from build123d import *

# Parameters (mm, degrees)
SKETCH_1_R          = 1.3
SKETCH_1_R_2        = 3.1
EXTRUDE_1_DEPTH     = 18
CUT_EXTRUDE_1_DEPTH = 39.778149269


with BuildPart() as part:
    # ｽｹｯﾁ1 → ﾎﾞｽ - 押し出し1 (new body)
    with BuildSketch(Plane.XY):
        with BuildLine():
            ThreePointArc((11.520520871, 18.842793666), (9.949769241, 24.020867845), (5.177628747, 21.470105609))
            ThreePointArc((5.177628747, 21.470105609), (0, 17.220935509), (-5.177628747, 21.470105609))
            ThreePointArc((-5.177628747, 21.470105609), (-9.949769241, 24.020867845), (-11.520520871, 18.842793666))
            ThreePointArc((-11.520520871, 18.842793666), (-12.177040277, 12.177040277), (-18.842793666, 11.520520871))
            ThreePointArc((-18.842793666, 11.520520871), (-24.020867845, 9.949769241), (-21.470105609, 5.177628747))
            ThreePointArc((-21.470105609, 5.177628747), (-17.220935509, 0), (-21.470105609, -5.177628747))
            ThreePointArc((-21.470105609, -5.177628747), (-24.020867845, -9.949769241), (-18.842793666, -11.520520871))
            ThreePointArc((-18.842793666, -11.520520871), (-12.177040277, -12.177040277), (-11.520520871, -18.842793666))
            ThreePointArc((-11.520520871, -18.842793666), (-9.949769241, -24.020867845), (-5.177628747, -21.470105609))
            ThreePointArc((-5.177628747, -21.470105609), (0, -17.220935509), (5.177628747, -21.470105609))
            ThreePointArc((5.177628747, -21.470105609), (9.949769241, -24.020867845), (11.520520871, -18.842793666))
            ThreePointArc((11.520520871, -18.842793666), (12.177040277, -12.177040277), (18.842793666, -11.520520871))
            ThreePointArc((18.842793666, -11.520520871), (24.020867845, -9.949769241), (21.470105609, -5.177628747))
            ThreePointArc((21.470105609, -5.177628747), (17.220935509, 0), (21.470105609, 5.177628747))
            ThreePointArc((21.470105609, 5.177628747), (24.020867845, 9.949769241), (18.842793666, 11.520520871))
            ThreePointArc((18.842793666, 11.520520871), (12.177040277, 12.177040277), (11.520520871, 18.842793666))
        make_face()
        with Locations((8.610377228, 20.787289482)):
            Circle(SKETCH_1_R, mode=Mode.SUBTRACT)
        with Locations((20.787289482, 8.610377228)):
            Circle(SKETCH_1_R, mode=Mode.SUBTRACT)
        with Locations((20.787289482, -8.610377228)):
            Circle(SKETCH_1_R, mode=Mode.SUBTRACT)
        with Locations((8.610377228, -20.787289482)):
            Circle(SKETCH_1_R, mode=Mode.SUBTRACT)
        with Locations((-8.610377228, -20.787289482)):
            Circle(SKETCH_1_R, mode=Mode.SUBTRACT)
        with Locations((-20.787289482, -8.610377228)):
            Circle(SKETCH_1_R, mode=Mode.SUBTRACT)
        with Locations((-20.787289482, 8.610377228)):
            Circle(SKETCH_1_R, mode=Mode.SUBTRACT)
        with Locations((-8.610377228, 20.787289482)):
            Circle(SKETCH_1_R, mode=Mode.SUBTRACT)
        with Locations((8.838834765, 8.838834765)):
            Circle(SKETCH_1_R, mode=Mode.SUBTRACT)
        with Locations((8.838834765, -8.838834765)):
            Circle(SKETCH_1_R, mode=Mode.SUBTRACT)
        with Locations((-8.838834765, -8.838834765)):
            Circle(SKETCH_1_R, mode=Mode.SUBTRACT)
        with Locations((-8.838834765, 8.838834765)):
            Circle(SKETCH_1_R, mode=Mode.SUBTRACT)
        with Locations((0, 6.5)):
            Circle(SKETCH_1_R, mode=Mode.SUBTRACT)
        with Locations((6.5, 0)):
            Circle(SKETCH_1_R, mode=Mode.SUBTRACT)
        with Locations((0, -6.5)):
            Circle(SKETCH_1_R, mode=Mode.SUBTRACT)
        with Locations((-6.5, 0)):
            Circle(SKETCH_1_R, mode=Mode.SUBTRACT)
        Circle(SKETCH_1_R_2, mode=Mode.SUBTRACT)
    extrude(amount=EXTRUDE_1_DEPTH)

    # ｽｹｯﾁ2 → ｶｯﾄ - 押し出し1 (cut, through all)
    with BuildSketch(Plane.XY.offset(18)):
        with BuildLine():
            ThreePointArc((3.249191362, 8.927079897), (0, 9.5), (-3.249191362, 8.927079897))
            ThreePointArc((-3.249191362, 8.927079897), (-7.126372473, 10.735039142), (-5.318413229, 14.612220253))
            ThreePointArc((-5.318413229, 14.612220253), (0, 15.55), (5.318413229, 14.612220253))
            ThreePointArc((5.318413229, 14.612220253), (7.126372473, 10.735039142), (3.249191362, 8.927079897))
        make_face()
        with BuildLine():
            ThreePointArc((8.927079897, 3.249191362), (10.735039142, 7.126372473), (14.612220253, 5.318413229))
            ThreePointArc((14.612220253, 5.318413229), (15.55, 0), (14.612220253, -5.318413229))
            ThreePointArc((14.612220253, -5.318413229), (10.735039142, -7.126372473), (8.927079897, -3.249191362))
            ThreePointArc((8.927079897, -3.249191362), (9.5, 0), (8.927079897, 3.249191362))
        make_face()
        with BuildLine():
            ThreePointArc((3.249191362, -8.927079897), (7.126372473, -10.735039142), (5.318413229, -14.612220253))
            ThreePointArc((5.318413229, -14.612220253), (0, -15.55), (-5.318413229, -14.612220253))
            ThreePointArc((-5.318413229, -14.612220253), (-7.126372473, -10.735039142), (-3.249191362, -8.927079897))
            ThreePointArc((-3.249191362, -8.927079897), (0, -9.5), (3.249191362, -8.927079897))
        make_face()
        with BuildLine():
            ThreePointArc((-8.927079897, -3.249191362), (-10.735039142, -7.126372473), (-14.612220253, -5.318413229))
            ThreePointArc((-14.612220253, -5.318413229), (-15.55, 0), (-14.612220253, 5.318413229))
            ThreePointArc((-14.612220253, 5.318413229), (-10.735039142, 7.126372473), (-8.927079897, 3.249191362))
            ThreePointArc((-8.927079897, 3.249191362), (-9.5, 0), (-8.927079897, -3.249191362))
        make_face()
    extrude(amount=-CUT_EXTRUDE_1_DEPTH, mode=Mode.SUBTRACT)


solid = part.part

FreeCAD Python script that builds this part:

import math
import FreeCAD as App
import Part
import Sketcher
from FreeCAD import Vector

doc = App.newDocument("Part")
body = doc.addObject("PartDesign::Body", "Body")

sketch1 = doc.addObject("Sketcher::SketchObject", "Sketch")
body.addObject(sketch1)
sketch1.AttachmentSupport = (doc.XY_Plane, [""])
sketch1.MapMode = "FlatFace"
sketch1.addGeometry([
    Part.ArcOfCircle(Part.Circle(Vector(8.610377, 20.787289, 0), Vector(0, 0, 1), 3.5), math.radians(-33.75), math.radians(168.75)),
    Part.ArcOfCircle(Part.Circle(Vector(0, 22.5, 0), Vector(0, 0, 1), 5.279064), math.radians(-168.75), math.radians(-11.25)),
    Part.ArcOfCircle(Part.Circle(Vector(-8.610377, 20.787289, 0), Vector(0, 0, 1), 3.5), math.radians(11.25), math.radians(213.75)),
    Part.ArcOfCircle(Part.Circle(Vector(-15.909903, 15.909903, 0), Vector(0, 0, 1), 5.279064), math.radians(-123.75), math.radians(33.75)),
    Part.ArcOfCircle(Part.Circle(Vector(-20.787289, 8.610377, 0), Vector(0, 0, 1), 3.5), math.radians(56.25), math.radians(258.75)),
    Part.ArcOfCircle(Part.Circle(Vector(-22.5, 0, 0), Vector(0, 0, 1), 5.279064), math.radians(-78.75), math.radians(78.75)),
    Part.ArcOfCircle(Part.Circle(Vector(-20.787289, -8.610377, 0), Vector(0, 0, 1), 3.5), math.radians(101.25), math.radians(303.75)),
    Part.ArcOfCircle(Part.Circle(Vector(-15.909903, -15.909903, 0), Vector(0, 0, 1), 5.279064), math.radians(-33.75), math.radians(123.75)),
    Part.ArcOfCircle(Part.Circle(Vector(-8.610377, -20.787289, 0), Vector(0, 0, 1), 3.5), math.radians(146.25), math.radians(348.75)),
    Part.ArcOfCircle(Part.Circle(Vector(0, -22.5, 0), Vector(0, 0, 1), 5.279064), math.radians(11.25), math.radians(168.75)),
    Part.ArcOfCircle(Part.Circle(Vector(8.610377, -20.787289, 0), Vector(0, 0, 1), 3.5), math.radians(-168.75), math.radians(33.75)),
    Part.ArcOfCircle(Part.Circle(Vector(15.909903, -15.909903, 0), Vector(0, 0, 1), 5.279064), math.radians(56.25), math.radians(213.75)),
    Part.ArcOfCircle(Part.Circle(Vector(20.787289, -8.610377, 0), Vector(0, 0, 1), 3.5), math.radians(-123.75), math.radians(78.75)),
    Part.ArcOfCircle(Part.Circle(Vector(22.5, 0, 0), Vector(0, 0, 1), 5.279064), math.radians(101.25), math.radians(258.75)),
    Part.ArcOfCircle(Part.Circle(Vector(20.787289, 8.610377, 0), Vector(0, 0, 1), 3.5), math.radians(-78.75), math.radians(123.75)),
    Part.ArcOfCircle(Part.Circle(Vector(15.909903, 15.909903, 0), Vector(0, 0, 1), 5.279064), math.radians(146.25), math.radians(303.75)),
    Part.Circle(Vector(-8.610377, -20.787289, 0), Vector(0, 0, 1), 1.3),
    Part.Circle(Vector(-20.787289, -8.610377, 0), Vector(0, 0, 1), 1.3),
    Part.Circle(Vector(-8.838835, -8.838835, 0), Vector(0, 0, 1), 1.3),
    Part.Circle(Vector(8.610377, -20.787289, 0), Vector(0, 0, 1), 1.3),
    Part.Circle(Vector(0, -6.5, 0), Vector(0, 0, 1), 1.3),
    Part.Circle(Vector(8.838835, -8.838835, 0), Vector(0, 0, 1), 1.3),
    Part.Circle(Vector(0, 0, 0), Vector(0, 0, 1), 3.1),
    Part.Circle(Vector(20.787289, -8.610377, 0), Vector(0, 0, 1), 1.3),
    Part.Circle(Vector(-20.787289, 8.610377, 0), Vector(0, 0, 1), 1.3),
    Part.Circle(Vector(-6.5, 0, 0), Vector(0, 0, 1), 1.3),
    Part.Circle(Vector(-8.838835, 8.838835, 0), Vector(0, 0, 1), 1.3),
    Part.Circle(Vector(-8.610377, 20.787289, 0), Vector(0, 0, 1), 1.3),
    Part.Circle(Vector(6.5, 0, 0), Vector(0, 0, 1), 1.3),
    Part.Circle(Vector(0, 6.5, 0), Vector(0, 0, 1), 1.3),
    Part.Circle(Vector(8.838835, 8.838835, 0), Vector(0, 0, 1), 1.3),
    Part.Circle(Vector(20.787289, 8.610377, 0), Vector(0, 0, 1), 1.3),
    Part.Circle(Vector(8.610377, 20.787289, 0), Vector(0, 0, 1), 1.3),
], False)
sketch1.addConstraint([
    Sketcher.Constraint("Tangent", 0, 2, 1, 2),
    Sketcher.Constraint("Tangent", 1, 1, 2, 1),
    Sketcher.Constraint("Tangent", 2, 2, 3, 2),
    Sketcher.Constraint("Tangent", 3, 1, 4, 1),
    Sketcher.Constraint("Tangent", 4, 2, 5, 2),
    Sketcher.Constraint("Tangent", 5, 1, 6, 1),
    Sketcher.Constraint("Tangent", 6, 2, 7, 2),
    Sketcher.Constraint("Tangent", 7, 1, 8, 1),
    Sketcher.Constraint("Tangent", 8, 2, 9, 2),
    Sketcher.Constraint("Tangent", 9, 1, 10, 1),
    Sketcher.Constraint("Tangent", 10, 2, 11, 2),
    Sketcher.Constraint("Tangent", 11, 1, 12, 1),
    Sketcher.Constraint("Tangent", 12, 2, 13, 2),
    Sketcher.Constraint("Tangent", 13, 1, 14, 1),
    Sketcher.Constraint("Tangent", 14, 2, 15, 2),
    Sketcher.Constraint("Tangent", 15, 1, 0, 1),
    Sketcher.Constraint("Coincident", 22, 3, -1, 1),
    Sketcher.Constraint("Coincident", 16, 3, 8, 3),
    Sketcher.Constraint("Coincident", 17, 3, 6, 3),
    Sketcher.Constraint("Coincident", 19, 3, 10, 3),
    Sketcher.Constraint("Coincident", 23, 3, 12, 3),
    Sketcher.Constraint("Coincident", 24, 3, 4, 3),
    Sketcher.Constraint("Coincident", 27, 3, 2, 3),
    Sketcher.Constraint("Coincident", 31, 3, 14, 3),
    Sketcher.Constraint("Coincident", 32, 3, 0, 3),
    Sketcher.Constraint("Equal", 0, 2),
    Sketcher.Constraint("Equal", 1, 3),
    Sketcher.Constraint("Equal", 2, 4),
    Sketcher.Constraint("Equal", 3, 5),
    Sketcher.Constraint("Equal", 4, 6),
    Sketcher.Constraint("Equal", 5, 7),
    Sketcher.Constraint("Equal", 6, 8),
    Sketcher.Constraint("Equal", 7, 9),
    Sketcher.Constraint("Equal", 8, 10),
    Sketcher.Constraint("Equal", 9, 11),
    Sketcher.Constraint("Equal", 10, 12),
    Sketcher.Constraint("Equal", 11, 13),
    Sketcher.Constraint("Equal", 12, 14),
    Sketcher.Constraint("Equal", 13, 15),
    Sketcher.Constraint("Equal", 16, 17),
    Sketcher.Constraint("Equal", 17, 18),
    Sketcher.Constraint("Equal", 18, 19),
    Sketcher.Constraint("Equal", 19, 20),
    Sketcher.Constraint("Equal", 20, 21),
    Sketcher.Constraint("Equal", 21, 23),
    Sketcher.Constraint("Equal", 23, 24),
    Sketcher.Constraint("Equal", 24, 25),
    Sketcher.Constraint("Equal", 25, 26),
    Sketcher.Constraint("Equal", 26, 27),
    Sketcher.Constraint("Equal", 27, 28),
    Sketcher.Constraint("Equal", 28, 29),
    Sketcher.Constraint("Equal", 29, 30),
    Sketcher.Constraint("Equal", 30, 31),
    Sketcher.Constraint("Equal", 31, 32),
    Sketcher.Constraint("Symmetric", 0, 3, 8, 3, -1, 1),
    Sketcher.Constraint("Symmetric", 2, 3, 10, 3, -1, 1),
    Sketcher.Constraint("Symmetric", 4, 3, 12, 3, -1, 1),
    Sketcher.Constraint("Symmetric", 6, 3, 14, 3, -1, 1),
    Sketcher.Constraint("Symmetric", 21, 3, 26, 3, -1, 1),
    Sketcher.Constraint("Symmetric", 25, 3, 28, 3, -1, 1),
    Sketcher.Constraint("Symmetric", 20, 3, 29, 3, -1, 1),
    Sketcher.Constraint("Symmetric", 18, 3, 30, 3, -1, 1),
    Sketcher.Constraint("Symmetric", 0, 3, 2, 3, -2),
    Sketcher.Constraint("Symmetric", 6, 3, 12, 3, -2),
    Sketcher.Constraint("Symmetric", 18, 3, 21, 3, -2),
    Sketcher.Constraint("PointOnObject", 20, 3, -2),
    Sketcher.Constraint("PointOnObject", 25, 3, -1),
    Sketcher.Constraint("Diameter", 16, 2.6),
    Sketcher.Constraint("Diameter", 22, 6.2),
    Sketcher.Constraint("Radius", 0, 3.5),
    Sketcher.Constraint("DistanceY", 9, 3, 20, 3, 16.0),
    Sketcher.Constraint("DistanceX", 5, 3, 25, 3, 16.0),
    Sketcher.Constraint("DistanceX", 25, 3, 28, 3, 13.0),
    Sketcher.Constraint("DistanceY", 20, 3, 29, 3, 13.0),
    Sketcher.Constraint("Radius", 1, 5.279064),
    Sketcher.Constraint("DistanceY", -1, 1, 0, 3, 20.787289),
    Sketcher.Constraint("DistanceX", 4, 3, -1, 1, 20.787289),
    Sketcher.Constraint("DistanceY", 30, 3, 0, 2, 12.631271),
    Sketcher.Constraint("DistanceX", 3, 1, 26, 3, 10.003959),
])
pad1 = doc.addObject("PartDesign::Pad", "Pad")
body.addObject(pad1)
pad1.Profile = sketch1
pad1.Length = 18

sketch2 = doc.addObject("Sketcher::SketchObject", "Sketch001")
body.addObject(sketch2)
sketch2.AttachmentSupport = (doc.XY_Plane, [""])
sketch2.MapMode = "FlatFace"
sketch2.AttachmentOffset = App.Placement(Vector(0, 0, 18), App.Rotation())
sketch2.addGeometry([
    Part.ArcOfCircle(Part.Circle(Vector(0, 0, 0), Vector(0, 0, 1), 9.5), math.radians(70), math.radians(110)),
    Part.ArcOfCircle(Part.Circle(Vector(4.283802, 11.76965, 0), Vector(0, 0, 1), 3.025), math.radians(-110), math.radians(70)),
    Part.ArcOfCircle(Part.Circle(Vector(0, 0, 0), Vector(0, 0, 1), 15.55), math.radians(70), math.radians(110)),
    Part.ArcOfCircle(Part.Circle(Vector(-4.283802, 11.76965, 0), Vector(0, 0, 1), 3.025), math.radians(110), math.radians(290)),
    Part.ArcOfCircle(Part.Circle(Vector(11.76965, 4.283802, 0), Vector(0, 0, 1), 3.025), math.radians(20), math.radians(200)),
    Part.ArcOfCircle(Part.Circle(Vector(0, 0, 0), Vector(0, 0, 1), 9.5), math.radians(-20), math.radians(20)),
    Part.ArcOfCircle(Part.Circle(Vector(11.76965, -4.283802, 0), Vector(0, 0, 1), 3.025), math.radians(160), math.radians(340)),
    Part.ArcOfCircle(Part.Circle(Vector(0, 0, 0), Vector(0, 0, 1), 15.55), math.radians(-20), math.radians(20)),
    Part.ArcOfCircle(Part.Circle(Vector(4.283802, -11.76965, 0), Vector(0, 0, 1), 3.025), math.radians(-70), math.radians(110)),
    Part.ArcOfCircle(Part.Circle(Vector(0, 0, 0), Vector(0, 0, 1), 9.5), math.radians(-110), math.radians(-70)),
    Part.ArcOfCircle(Part.Circle(Vector(-4.283802, -11.76965, 0), Vector(0, 0, 1), 3.025), math.radians(70), math.radians(250)),
    Part.ArcOfCircle(Part.Circle(Vector(0, 0, 0), Vector(0, 0, 1), 15.55), math.radians(-110), math.radians(-70)),
    Part.ArcOfCircle(Part.Circle(Vector(-11.76965, -4.283802, 0), Vector(0, 0, 1), 3.025), math.radians(-160), math.radians(20)),
    Part.ArcOfCircle(Part.Circle(Vector(0, 0, 0), Vector(0, 0, 1), 9.5), math.radians(160), math.radians(200)),
    Part.ArcOfCircle(Part.Circle(Vector(-11.76965, 4.283802, 0), Vector(0, 0, 1), 3.025), math.radians(-20), math.radians(160)),
    Part.ArcOfCircle(Part.Circle(Vector(0, 0, 0), Vector(0, 0, 1), 15.55), math.radians(160), math.radians(200)),
], False)
sketch2.addConstraint([
    Sketcher.Constraint("Tangent", 0, 1, 1, 1),
    Sketcher.Constraint("Tangent", 1, 2, 2, 1),
    Sketcher.Constraint("Tangent", 2, 2, 3, 1),
    Sketcher.Constraint("Tangent", 3, 2, 0, 2),
    Sketcher.Constraint("Tangent", 4, 2, 5, 2),
    Sketcher.Constraint("Tangent", 5, 1, 6, 1),
    Sketcher.Constraint("Tangent", 6, 2, 7, 1),
    Sketcher.Constraint("Tangent", 7, 2, 4, 1),
    Sketcher.Constraint("Tangent", 8, 2, 9, 2),
    Sketcher.Constraint("Tangent", 9, 1, 10, 1),
    Sketcher.Constraint("Tangent", 10, 2, 11, 1),
    Sketcher.Constraint("Tangent", 11, 2, 8, 1),
    Sketcher.Constraint("Tangent", 12, 2, 13, 2),
    Sketcher.Constraint("Tangent", 13, 1, 14, 1),
    Sketcher.Constraint("Tangent", 14, 2, 15, 1),
    Sketcher.Constraint("Tangent", 15, 2, 12, 1),
    Sketcher.Constraint("Coincident", 0, 3, -1, 1),
    Sketcher.Constraint("Coincident", 2, 3, -1, 1),
    Sketcher.Constraint("Coincident", 5, 3, -1, 1),
    Sketcher.Constraint("Coincident", 7, 3, -1, 1),
    Sketcher.Constraint("Coincident", 9, 3, -1, 1),
    Sketcher.Constraint("Coincident", 11, 3, -1, 1),
    Sketcher.Constraint("Coincident", 13, 3, -1, 1),
    Sketcher.Constraint("Coincident", 15, 3, -1, 1),
    Sketcher.Constraint("Equal", 3, 4),
    Sketcher.Constraint("Equal", 0, 5),
    Sketcher.Constraint("Equal", 6, 8),
    Sketcher.Constraint("Equal", 5, 9),
    Sketcher.Constraint("Equal", 10, 12),
    Sketcher.Constraint("Equal", 9, 13),
    Sketcher.Constraint("Horizontal", 1, 3, 3, 3),
    Sketcher.Constraint("Horizontal", 8, 3, 10, 3),
    Sketcher.Constraint("Horizontal", 6, 3, 12, 3),
    Sketcher.Constraint("Horizontal", 4, 3, 14, 3),
    Sketcher.Constraint("Vertical", 4, 3, 6, 3),
    Sketcher.Constraint("Vertical", 1, 3, 8, 3),
    Sketcher.Constraint("Radius", 0, 9.5),
    Sketcher.Constraint("Radius", 2, 15.55),
    Sketcher.Constraint("DistanceY", -1, 1, 1, 3, 11.76965),
    Sketcher.Constraint("DistanceX", -1, 1, 4, 3, 11.76965),
])
pocket1 = doc.addObject("PartDesign::Pocket", "Pocket")
body.addObject(pocket1)
pocket1.Profile = sketch2
pocket1.Type = "ThroughAll"

doc.recompute()
